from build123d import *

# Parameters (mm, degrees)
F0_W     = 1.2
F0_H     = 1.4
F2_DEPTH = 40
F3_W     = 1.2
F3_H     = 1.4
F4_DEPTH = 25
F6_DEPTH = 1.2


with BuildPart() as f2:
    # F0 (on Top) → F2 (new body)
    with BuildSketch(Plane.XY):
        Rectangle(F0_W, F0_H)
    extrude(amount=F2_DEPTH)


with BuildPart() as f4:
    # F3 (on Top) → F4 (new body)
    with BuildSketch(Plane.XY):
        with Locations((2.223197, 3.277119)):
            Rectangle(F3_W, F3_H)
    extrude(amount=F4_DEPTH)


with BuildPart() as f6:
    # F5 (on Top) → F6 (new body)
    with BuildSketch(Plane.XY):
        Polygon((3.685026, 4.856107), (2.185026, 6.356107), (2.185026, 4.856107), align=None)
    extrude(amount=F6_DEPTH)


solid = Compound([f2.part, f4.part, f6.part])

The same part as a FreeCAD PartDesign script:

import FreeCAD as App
import Part
import Sketcher

V = App.Vector

doc = App.newDocument("Part")
body = doc.addObject("PartDesign::Body", "Body")

# Sketch on XY plane
sketch1 = body.newObject("Sketcher::SketchObject", "Sketch")
sketch1.AttachmentSupport = (doc.getObject("XY_Plane"), [""])
sketch1.MapMode = "FlatFace"
sketch1.addGeometry([
    Part.LineSegment(V(-0.6, 0.7, 0), V(-0.6, -0.7, 0)),
    Part.LineSegment(V(-0.6, -0.7, 0), V(0.6, -0.7, 0)),
    Part.LineSegment(V(0.6, -0.7, 0), V(0.6, 0.7, 0)),
    Part.LineSegment(V(0.6, 0.7, 0), V(-0.6, 0.7, 0)),
], False)
sketch1.addConstraint([
    Sketcher.Constraint("Coincident", 0, 2, 1, 1),
    Sketcher.Constraint("Coincident", 1, 2, 2, 1),
    Sketcher.Constraint("Coincident", 2, 2, 3, 1),
    Sketcher.Constraint("Coincident", 3, 2, 0, 1),
    Sketcher.Constraint("Vertical", 0),
    Sketcher.Constraint("Horizontal", 1),
    Sketcher.Constraint("Vertical", 2),
    Sketcher.Constraint("Horizontal", 3),
    Sketcher.Constraint("Symmetric", 0, 2, 2, 2, -1, 1),
    Sketcher.Constraint("DistanceX", 1, 1, 1, 2, 1.2),
    Sketcher.Constraint("DistanceY", 0, 2, 0, 1, 1.4),
])
pad1 = body.newObject("PartDesign::Pad", "Pad")
pad1.Profile = sketch1
pad1.Length = 40
body2 = doc.addObject("PartDesign::Body", "Body001")

# Sketch on XY plane
sketch2 = body2.newObject("Sketcher::SketchObject", "Sketch001")
sketch2.AttachmentSupport = (doc.getObject("XY_Plane001"), [""])
sketch2.MapMode = "FlatFace"
sketch2.addGeometry([
    Part.LineSegment(V(1.623197, 3.977119, 0), V(1.623197, 2.577119, 0)),
    Part.LineSegment(V(1.623197, 2.577119, 0), V(2.823197, 2.577119, 0)),
    Part.LineSegment(V(2.823197, 2.577119, 0), V(2.823197, 3.977119, 0)),
    Part.LineSegment(V(2.823197, 3.977119, 0), V(1.623197, 3.977119, 0)),
], False)
sketch2.addConstraint([
    Sketcher.Constraint("Coincident", 0, 2, 1, 1),
    Sketcher.Constraint("Coincident", 1, 2, 2, 1),
    Sketcher.Constraint("Coincident", 2, 2, 3, 1),
    Sketcher.Constraint("Coincident", 3, 2, 0, 1),
    Sketcher.Constraint("Vertical", 0),
    Sketcher.Constraint("Horizontal", 1),
    Sketcher.Constraint("Vertical", 2),
    Sketcher.Constraint("Horizontal", 3),
    Sketcher.Constraint("DistanceX", 1, 1, 1, 2, 1.2),
    Sketcher.Constraint("DistanceY", 0, 2, 0, 1, 1.4),
    Sketcher.Constraint("DistanceY", -1, 1, 0, 2, 2.577119),
    Sketcher.Constraint("DistanceX", -1, 1, 0, 2, 1.623197),
])
pad2 = body2.newObject("PartDesign::Pad", "Pad001")
pad2.Profile = sketch2
pad2.Length = 25
body3 = doc.addObject("PartDesign::Body", "Body002")

# Sketch on XY plane
sketch3 = body3.newObject("Sketcher::SketchObject", "Sketch002")
sketch3.AttachmentSupport = (doc.getObject("XY_Plane002"), [""])
sketch3.MapMode = "FlatFace"
sketch3.addGeometry([
    Part.LineSegment(V(3.685026, 4.856107, 0), V(2.185026, 6.356107, 0)),
    Part.LineSegment(V(2.185026, 6.356107, 0), V(2.185026, 4.856107, 0)),
    Part.LineSegment(V(2.185026, 4.856107, 0), V(3.685026, 4.856107, 0)),
], False)
sketch3.addConstraint([
    Sketcher.Constraint("Coincident", 0, 2, 1, 1),
    Sketcher.Constraint("Coincident", 1, 2, 2, 1),
    Sketcher.Constraint("Coincident", 2, 2, 0, 1),
    Sketcher.Constraint("Vertical", 1),
    Sketcher.Constraint("Horizontal", 2),
    Sketcher.Constraint("Equal", 2, 1),
    Sketcher.Constraint("DistanceX", 2, 1, 2, 2, 1.5),
    Sketcher.Constraint("DistanceX", -1, 1, 0, 2, 2.185026),
    Sketcher.Constraint("DistanceY", -1, 1, 0, 2, 6.356107),
])
pad3 = body3.newObject("PartDesign::Pad", "Pad002")
pad3.Profile = sketch3
pad3.Length = 1.2

doc.recompute()
